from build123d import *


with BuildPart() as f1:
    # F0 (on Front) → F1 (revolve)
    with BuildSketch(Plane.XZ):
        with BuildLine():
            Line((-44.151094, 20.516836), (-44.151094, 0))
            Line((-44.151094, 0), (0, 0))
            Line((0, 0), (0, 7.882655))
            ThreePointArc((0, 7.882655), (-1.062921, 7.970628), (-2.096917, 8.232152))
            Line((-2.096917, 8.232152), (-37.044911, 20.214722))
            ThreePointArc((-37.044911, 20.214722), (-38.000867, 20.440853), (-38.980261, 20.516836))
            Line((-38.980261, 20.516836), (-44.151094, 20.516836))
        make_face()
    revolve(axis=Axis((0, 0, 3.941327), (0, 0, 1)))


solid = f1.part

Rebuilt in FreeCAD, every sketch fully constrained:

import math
import FreeCAD as App
import Part
import Sketcher

V = App.Vector
Q = App.Units.Quantity

doc = App.newDocument("Part")
body = doc.addObject("PartDesign::Body", "Body")

sketch1 = body.newObject("Sketcher::SketchObject", "Sketch")
sketch1.AttachmentSupport = (doc.getObject("XZ_Plane"), [""])
sketch1.MapMode = "FlatFace"
sketch1.addGeometry(Part.LineSegment(V(-44.151094, 20.516836, 0), V(-44.151094, 0, 0)), False)
sketch1.addGeometry(Part.LineSegment(V(-44.151094, 0, 0), V(0, 0, 0)), False)
sketch1.addGeometry(Part.LineSegment(V(0, 0, 0), V(0, 7.882655, 0)), False)
sketch1.addGeometry(Part.ArcOfCircle(Part.Circle(V(0.000004, 14.347983, 0), V(0, 0, 1), 6.465328), math.radians(-108.925186), math.radians(-90.000034)), False)
sketch1.addGeometry(Part.LineSegment(V(-2.096917, 8.232152, 0), V(-37.044911, 20.214722, 0)), False)
sketch1.addGeometry(Part.ArcOfCircle(Part.Circle(V(-38.98026, 14.166833, 0), V(0, 0, 1), 6.350003), math.radians(72.255115), math.radians(90.000007)), False)
sketch1.addGeometry(Part.LineSegment(V(-38.980261, 20.516836, 0), V(-44.151094, 20.516836, 0)), False)
sketch1.addConstraint(Sketcher.Constraint("Coincident", 0, 2, 1, 1))
sketch1.addConstraint(Sketcher.Constraint("Coincident", 1, 2, 2, 1))
sketch1.addConstraint(Sketcher.Constraint("Coincident", 2, 2, 3, 2))
sketch1.addConstraint(Sketcher.Constraint("Coincident", 3, 1, 4, 1))
sketch1.addConstraint(Sketcher.Constraint("Coincident", 4, 2, 5, 1))
sketch1.addConstraint(Sketcher.Constraint("Coincident", 5, 2, 6, 1))
sketch1.addConstraint(Sketcher.Constraint("Coincident", 6, 2, 0, 1))
sketch1.addConstraint(Sketcher.Constraint("Vertical", 0))
sketch1.addConstraint(Sketcher.Constraint("Horizontal", 1))
sketch1.addConstraint(Sketcher.Constraint("Vertical", 2))
sketch1.addConstraint(Sketcher.Constraint("Horizontal", 6))
sketch1.addConstraint(Sketcher.Constraint("Coincident", 1, 2, -1, 1))
sketch1.addConstraint(Sketcher.Constraint("Radius", 3, Q("6.465328 mm")))
sketch1.addConstraint(Sketcher.Constraint("Radius", 5, Q("6.350003 mm")))
sketch1.addConstraint(Sketcher.Constraint("DistanceX", 1, 1, 1, 2, Q("44.151094 mm")))
sketch1.addConstraint(Sketcher.Constraint("DistanceX", 6, 2, 6, 1, Q("5.170833 mm")))
sketch1.addConstraint(Sketcher.Constraint("DistanceY", 0, 2, 0, 1, Q("20.516836 mm")))
sketch1.addConstraint(Sketcher.Constraint("DistanceY", 2, 1, 2, 2, Q("7.882655 mm")))
sketch1.addConstraint(Sketcher.Constraint("DistanceX", 5, 3, -1, 1, Q("38.98026 mm")))
sketch1.addConstraint(Sketcher.Constraint("DistanceY", -1, 1, 3, 1, Q("8.232152 mm")))
sketch1.addConstraint(Sketcher.Constraint("DistanceX", 4, 2, -1, 1, Q("37.044911 mm")))
sketch1.addConstraint(Sketcher.Constraint("Distance", 4, Q("36.945152 mm")))
revolution = body.newObject("PartDesign::Revolution", "Revolution")
revolution.Profile = sketch1
revolution.ReferenceAxis = (sketch1, ["V_Axis"])
revolution.Angle = 360

doc.recompute()
